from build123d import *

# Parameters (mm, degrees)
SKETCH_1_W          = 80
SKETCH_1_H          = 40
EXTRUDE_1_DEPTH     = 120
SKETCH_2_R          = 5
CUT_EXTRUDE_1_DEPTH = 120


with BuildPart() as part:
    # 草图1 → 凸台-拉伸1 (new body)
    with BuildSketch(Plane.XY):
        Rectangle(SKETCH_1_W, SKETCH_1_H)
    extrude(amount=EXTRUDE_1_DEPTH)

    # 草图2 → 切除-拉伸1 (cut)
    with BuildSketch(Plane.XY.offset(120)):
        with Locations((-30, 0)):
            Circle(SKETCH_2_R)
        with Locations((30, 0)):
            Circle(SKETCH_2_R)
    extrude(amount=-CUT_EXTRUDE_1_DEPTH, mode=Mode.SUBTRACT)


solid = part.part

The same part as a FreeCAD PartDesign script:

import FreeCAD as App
import Part
import Sketcher
from FreeCAD import Vector

doc = App.newDocument("Part")
body = doc.addObject("PartDesign::Body", "Body")

sketch1 = body.newObject("Sketcher::SketchObject", "Sketch")
sketch1.AttachmentSupport = (doc.getObject("XY_Plane"), [""])
sketch1.MapMode = "FlatFace"
sketch1.addGeometry([
    Part.LineSegment(Vector(-40, 20, 0), Vector(-40, -20, 0)),
    Part.LineSegment(Vector(-40, -20, 0), Vector(40, -20, 0)),
    Part.LineSegment(Vector(40, -20, 0), Vector(40, 20, 0)),
    Part.LineSegment(Vector(40, 20, 0), Vector(-40, 20, 0)),
], False)
sketch1.addConstraint([
    Sketcher.Constraint("Coincident", 0, 2, 1, 1),
    Sketcher.Constraint("Coincident", 1, 2, 2, 1),
    Sketcher.Constraint("Coincident", 2, 2, 3, 1),
    Sketcher.Constraint("Coincident", 3, 2, 0, 1),
    Sketcher.Constraint("Vertical", 0),
    Sketcher.Constraint("Horizontal", 1),
    Sketcher.Constraint("Vertical", 2),
    Sketcher.Constraint("Horizontal", 3),
    Sketcher.Constraint("Symmetric", 0, 2, 2, 2, -1, 1),
    Sketcher.Constraint("DistanceX", 1, 1, 1, 2, 80.0),
    Sketcher.Constraint("DistanceY", 0, 2, 0, 1, 40.0),
])
pad1 = body.newObject("PartDesign::Pad", "Pad")
pad1.Profile = sketch1
pad1.Length = 120

sketch2 = body.newObject("Sketcher::SketchObject", "Sketch001")
sketch2.AttachmentSupport = (doc.getObject("XY_Plane"), [""])
sketch2.MapMode = "FlatFace"
sketch2.AttachmentOffset = App.Placement(Vector(0, 0, 120), App.Rotation())
sketch2.addGeometry([
    Part.Circle(Vector(-30, 0, 0), Vector(0, 0, 1), 5),
    Part.Circle(Vector(30, 0, 0), Vector(0, 0, 1), 5),
], False)
sketch2.addConstraint([
    Sketcher.Constraint("Equal", 0, 1),
    Sketcher.Constraint("Symmetric", 0, 3, 1, 3, -1, 1),
    Sketcher.Constraint("PointOnObject", 0, 3, -1),
    Sketcher.Constraint("Diameter", 0, 10.0),
    Sketcher.Constraint("DistanceX", 0, 3, -1, 1, 30.0),
])
pocket1 = body.newObject("PartDesign::Pocket", "Pocket")
pocket1.Profile = sketch2
pocket1.Length = 120

doc.recompute()
